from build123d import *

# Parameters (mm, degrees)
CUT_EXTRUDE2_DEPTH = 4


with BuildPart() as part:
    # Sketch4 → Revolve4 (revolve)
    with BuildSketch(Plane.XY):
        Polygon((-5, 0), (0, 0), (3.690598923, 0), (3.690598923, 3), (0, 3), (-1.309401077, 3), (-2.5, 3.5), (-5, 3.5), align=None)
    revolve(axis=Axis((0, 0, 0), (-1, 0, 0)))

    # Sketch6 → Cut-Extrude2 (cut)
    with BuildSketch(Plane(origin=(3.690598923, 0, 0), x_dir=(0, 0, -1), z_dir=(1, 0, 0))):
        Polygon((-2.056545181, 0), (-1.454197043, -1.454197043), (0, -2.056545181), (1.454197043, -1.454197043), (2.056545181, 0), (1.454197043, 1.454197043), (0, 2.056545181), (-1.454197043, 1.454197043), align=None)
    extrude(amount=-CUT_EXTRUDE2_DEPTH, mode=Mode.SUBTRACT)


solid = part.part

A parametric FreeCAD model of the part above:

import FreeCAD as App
import Part
import Sketcher
from FreeCAD import Vector
Q = App.Units.Quantity


def add_polygon(sketch, points):
    """Adds a closed chain of lines whose ends are joined by coincident constraints."""
    first, n = sketch.GeometryCount, len(points)
    for a, b in zip(points, points[1:] + points[:1]):
        sketch.addGeometry(Part.LineSegment(App.Vector(*a, 0), App.Vector(*b, 0)), False)
    for i in range(n):
        sketch.addConstraint(Sketcher.Constraint("Coincident", first + i, 2, first + (i + 1) % n, 1))

doc = App.newDocument("Part")
body = doc.addObject("PartDesign::Body", "Body")

sketch1 = body.newObject("Sketcher::SketchObject", "Sketch")
sketch1.AttachmentSupport = (doc.getObject("XY_Plane"), [""])
sketch1.MapMode = "FlatFace"
add_polygon(sketch1, [(-5, 0), (3.7, 0), (3.7, 3), (-1.3, 3), (-2.5, 3.5), (-5, 3.5)])
sketch1.addConstraint([
    Sketcher.Constraint("Horizontal", 0),
    Sketcher.Constraint("Vertical", 1),
    Sketcher.Constraint("Horizontal", 2),
    Sketcher.Constraint("Horizontal", 4),
    Sketcher.Constraint("Vertical", 5),
    Sketcher.Constraint("PointOnObject", 0, 2, -1),
    Sketcher.Constraint("DistanceX", 2, 2, 2, 1, 5.0),
    Sketcher.Constraint("DistanceY", 1, 1, 1, 2, 3.0),
    Sketcher.Constraint("DistanceX", 4, 2, 4, 1, 2.5),
    Sketcher.Constraint("DistanceY", 5, 2, 5, 1, 3.5),
    Sketcher.Constraint("DistanceX", 4, 2, -1, 1, 5.0),
    Sketcher.Constraint("DistanceX", 0, 1, 0, 2, 8.690599),
])
revolution = body.newObject("PartDesign::Revolution", "Revolution")
revolution.Profile = sketch1
revolution.ReferenceAxis = (sketch1, ["H_Axis"])
revolution.Angle = 360

sketch2 = body.newObject("Sketcher::SketchObject", "Sketch001")
sketch2.AttachmentSupport = (doc.getObject("YZ_Plane"), [""])
sketch2.MapMode = "FlatFace"
sketch2.AttachmentOffset = App.Placement(Vector(0, 0, 3.690599), App.Rotation())
add_polygon(sketch2, [(0, 2.1), (-1.5, 1.5), (-2.1, 0), (-1.5, -1.5), (0, -2.1), (1.5, -1.5), (2.1, 0), (1.5, 1.5)])
sketch2.addConstraint([
    Sketcher.Constraint("Symmetric", 0, 2, 4, 2, -1, 1),
    Sketcher.Constraint("Symmetric", 1, 2, 5, 2, -1, 1),
    Sketcher.Constraint("Symmetric", 2, 2, 6, 2, -1, 1),
    Sketcher.Constraint("Symmetric", 3, 2, 7, 2, -1, 1),
    Sketcher.Constraint("Symmetric", 2, 2, 4, 2, -2),
    Sketcher.Constraint("PointOnObject", 1, 2, -1),
    Sketcher.Constraint("PointOnObject", 3, 2, -2),
    Sketcher.Constraint("Perpendicular", 0, 2),
    Sketcher.Constraint("Equal", 0, 1),
    Sketcher.Constraint("Angle", 0, Q("-157.5 deg")),
    Sketcher.Constraint("Distance", 0, 1.574012),
])
pocket1 = body.newObject("PartDesign::Pocket", "Pocket")
pocket1.Profile = sketch2
pocket1.Length = 4

doc.recompute()
